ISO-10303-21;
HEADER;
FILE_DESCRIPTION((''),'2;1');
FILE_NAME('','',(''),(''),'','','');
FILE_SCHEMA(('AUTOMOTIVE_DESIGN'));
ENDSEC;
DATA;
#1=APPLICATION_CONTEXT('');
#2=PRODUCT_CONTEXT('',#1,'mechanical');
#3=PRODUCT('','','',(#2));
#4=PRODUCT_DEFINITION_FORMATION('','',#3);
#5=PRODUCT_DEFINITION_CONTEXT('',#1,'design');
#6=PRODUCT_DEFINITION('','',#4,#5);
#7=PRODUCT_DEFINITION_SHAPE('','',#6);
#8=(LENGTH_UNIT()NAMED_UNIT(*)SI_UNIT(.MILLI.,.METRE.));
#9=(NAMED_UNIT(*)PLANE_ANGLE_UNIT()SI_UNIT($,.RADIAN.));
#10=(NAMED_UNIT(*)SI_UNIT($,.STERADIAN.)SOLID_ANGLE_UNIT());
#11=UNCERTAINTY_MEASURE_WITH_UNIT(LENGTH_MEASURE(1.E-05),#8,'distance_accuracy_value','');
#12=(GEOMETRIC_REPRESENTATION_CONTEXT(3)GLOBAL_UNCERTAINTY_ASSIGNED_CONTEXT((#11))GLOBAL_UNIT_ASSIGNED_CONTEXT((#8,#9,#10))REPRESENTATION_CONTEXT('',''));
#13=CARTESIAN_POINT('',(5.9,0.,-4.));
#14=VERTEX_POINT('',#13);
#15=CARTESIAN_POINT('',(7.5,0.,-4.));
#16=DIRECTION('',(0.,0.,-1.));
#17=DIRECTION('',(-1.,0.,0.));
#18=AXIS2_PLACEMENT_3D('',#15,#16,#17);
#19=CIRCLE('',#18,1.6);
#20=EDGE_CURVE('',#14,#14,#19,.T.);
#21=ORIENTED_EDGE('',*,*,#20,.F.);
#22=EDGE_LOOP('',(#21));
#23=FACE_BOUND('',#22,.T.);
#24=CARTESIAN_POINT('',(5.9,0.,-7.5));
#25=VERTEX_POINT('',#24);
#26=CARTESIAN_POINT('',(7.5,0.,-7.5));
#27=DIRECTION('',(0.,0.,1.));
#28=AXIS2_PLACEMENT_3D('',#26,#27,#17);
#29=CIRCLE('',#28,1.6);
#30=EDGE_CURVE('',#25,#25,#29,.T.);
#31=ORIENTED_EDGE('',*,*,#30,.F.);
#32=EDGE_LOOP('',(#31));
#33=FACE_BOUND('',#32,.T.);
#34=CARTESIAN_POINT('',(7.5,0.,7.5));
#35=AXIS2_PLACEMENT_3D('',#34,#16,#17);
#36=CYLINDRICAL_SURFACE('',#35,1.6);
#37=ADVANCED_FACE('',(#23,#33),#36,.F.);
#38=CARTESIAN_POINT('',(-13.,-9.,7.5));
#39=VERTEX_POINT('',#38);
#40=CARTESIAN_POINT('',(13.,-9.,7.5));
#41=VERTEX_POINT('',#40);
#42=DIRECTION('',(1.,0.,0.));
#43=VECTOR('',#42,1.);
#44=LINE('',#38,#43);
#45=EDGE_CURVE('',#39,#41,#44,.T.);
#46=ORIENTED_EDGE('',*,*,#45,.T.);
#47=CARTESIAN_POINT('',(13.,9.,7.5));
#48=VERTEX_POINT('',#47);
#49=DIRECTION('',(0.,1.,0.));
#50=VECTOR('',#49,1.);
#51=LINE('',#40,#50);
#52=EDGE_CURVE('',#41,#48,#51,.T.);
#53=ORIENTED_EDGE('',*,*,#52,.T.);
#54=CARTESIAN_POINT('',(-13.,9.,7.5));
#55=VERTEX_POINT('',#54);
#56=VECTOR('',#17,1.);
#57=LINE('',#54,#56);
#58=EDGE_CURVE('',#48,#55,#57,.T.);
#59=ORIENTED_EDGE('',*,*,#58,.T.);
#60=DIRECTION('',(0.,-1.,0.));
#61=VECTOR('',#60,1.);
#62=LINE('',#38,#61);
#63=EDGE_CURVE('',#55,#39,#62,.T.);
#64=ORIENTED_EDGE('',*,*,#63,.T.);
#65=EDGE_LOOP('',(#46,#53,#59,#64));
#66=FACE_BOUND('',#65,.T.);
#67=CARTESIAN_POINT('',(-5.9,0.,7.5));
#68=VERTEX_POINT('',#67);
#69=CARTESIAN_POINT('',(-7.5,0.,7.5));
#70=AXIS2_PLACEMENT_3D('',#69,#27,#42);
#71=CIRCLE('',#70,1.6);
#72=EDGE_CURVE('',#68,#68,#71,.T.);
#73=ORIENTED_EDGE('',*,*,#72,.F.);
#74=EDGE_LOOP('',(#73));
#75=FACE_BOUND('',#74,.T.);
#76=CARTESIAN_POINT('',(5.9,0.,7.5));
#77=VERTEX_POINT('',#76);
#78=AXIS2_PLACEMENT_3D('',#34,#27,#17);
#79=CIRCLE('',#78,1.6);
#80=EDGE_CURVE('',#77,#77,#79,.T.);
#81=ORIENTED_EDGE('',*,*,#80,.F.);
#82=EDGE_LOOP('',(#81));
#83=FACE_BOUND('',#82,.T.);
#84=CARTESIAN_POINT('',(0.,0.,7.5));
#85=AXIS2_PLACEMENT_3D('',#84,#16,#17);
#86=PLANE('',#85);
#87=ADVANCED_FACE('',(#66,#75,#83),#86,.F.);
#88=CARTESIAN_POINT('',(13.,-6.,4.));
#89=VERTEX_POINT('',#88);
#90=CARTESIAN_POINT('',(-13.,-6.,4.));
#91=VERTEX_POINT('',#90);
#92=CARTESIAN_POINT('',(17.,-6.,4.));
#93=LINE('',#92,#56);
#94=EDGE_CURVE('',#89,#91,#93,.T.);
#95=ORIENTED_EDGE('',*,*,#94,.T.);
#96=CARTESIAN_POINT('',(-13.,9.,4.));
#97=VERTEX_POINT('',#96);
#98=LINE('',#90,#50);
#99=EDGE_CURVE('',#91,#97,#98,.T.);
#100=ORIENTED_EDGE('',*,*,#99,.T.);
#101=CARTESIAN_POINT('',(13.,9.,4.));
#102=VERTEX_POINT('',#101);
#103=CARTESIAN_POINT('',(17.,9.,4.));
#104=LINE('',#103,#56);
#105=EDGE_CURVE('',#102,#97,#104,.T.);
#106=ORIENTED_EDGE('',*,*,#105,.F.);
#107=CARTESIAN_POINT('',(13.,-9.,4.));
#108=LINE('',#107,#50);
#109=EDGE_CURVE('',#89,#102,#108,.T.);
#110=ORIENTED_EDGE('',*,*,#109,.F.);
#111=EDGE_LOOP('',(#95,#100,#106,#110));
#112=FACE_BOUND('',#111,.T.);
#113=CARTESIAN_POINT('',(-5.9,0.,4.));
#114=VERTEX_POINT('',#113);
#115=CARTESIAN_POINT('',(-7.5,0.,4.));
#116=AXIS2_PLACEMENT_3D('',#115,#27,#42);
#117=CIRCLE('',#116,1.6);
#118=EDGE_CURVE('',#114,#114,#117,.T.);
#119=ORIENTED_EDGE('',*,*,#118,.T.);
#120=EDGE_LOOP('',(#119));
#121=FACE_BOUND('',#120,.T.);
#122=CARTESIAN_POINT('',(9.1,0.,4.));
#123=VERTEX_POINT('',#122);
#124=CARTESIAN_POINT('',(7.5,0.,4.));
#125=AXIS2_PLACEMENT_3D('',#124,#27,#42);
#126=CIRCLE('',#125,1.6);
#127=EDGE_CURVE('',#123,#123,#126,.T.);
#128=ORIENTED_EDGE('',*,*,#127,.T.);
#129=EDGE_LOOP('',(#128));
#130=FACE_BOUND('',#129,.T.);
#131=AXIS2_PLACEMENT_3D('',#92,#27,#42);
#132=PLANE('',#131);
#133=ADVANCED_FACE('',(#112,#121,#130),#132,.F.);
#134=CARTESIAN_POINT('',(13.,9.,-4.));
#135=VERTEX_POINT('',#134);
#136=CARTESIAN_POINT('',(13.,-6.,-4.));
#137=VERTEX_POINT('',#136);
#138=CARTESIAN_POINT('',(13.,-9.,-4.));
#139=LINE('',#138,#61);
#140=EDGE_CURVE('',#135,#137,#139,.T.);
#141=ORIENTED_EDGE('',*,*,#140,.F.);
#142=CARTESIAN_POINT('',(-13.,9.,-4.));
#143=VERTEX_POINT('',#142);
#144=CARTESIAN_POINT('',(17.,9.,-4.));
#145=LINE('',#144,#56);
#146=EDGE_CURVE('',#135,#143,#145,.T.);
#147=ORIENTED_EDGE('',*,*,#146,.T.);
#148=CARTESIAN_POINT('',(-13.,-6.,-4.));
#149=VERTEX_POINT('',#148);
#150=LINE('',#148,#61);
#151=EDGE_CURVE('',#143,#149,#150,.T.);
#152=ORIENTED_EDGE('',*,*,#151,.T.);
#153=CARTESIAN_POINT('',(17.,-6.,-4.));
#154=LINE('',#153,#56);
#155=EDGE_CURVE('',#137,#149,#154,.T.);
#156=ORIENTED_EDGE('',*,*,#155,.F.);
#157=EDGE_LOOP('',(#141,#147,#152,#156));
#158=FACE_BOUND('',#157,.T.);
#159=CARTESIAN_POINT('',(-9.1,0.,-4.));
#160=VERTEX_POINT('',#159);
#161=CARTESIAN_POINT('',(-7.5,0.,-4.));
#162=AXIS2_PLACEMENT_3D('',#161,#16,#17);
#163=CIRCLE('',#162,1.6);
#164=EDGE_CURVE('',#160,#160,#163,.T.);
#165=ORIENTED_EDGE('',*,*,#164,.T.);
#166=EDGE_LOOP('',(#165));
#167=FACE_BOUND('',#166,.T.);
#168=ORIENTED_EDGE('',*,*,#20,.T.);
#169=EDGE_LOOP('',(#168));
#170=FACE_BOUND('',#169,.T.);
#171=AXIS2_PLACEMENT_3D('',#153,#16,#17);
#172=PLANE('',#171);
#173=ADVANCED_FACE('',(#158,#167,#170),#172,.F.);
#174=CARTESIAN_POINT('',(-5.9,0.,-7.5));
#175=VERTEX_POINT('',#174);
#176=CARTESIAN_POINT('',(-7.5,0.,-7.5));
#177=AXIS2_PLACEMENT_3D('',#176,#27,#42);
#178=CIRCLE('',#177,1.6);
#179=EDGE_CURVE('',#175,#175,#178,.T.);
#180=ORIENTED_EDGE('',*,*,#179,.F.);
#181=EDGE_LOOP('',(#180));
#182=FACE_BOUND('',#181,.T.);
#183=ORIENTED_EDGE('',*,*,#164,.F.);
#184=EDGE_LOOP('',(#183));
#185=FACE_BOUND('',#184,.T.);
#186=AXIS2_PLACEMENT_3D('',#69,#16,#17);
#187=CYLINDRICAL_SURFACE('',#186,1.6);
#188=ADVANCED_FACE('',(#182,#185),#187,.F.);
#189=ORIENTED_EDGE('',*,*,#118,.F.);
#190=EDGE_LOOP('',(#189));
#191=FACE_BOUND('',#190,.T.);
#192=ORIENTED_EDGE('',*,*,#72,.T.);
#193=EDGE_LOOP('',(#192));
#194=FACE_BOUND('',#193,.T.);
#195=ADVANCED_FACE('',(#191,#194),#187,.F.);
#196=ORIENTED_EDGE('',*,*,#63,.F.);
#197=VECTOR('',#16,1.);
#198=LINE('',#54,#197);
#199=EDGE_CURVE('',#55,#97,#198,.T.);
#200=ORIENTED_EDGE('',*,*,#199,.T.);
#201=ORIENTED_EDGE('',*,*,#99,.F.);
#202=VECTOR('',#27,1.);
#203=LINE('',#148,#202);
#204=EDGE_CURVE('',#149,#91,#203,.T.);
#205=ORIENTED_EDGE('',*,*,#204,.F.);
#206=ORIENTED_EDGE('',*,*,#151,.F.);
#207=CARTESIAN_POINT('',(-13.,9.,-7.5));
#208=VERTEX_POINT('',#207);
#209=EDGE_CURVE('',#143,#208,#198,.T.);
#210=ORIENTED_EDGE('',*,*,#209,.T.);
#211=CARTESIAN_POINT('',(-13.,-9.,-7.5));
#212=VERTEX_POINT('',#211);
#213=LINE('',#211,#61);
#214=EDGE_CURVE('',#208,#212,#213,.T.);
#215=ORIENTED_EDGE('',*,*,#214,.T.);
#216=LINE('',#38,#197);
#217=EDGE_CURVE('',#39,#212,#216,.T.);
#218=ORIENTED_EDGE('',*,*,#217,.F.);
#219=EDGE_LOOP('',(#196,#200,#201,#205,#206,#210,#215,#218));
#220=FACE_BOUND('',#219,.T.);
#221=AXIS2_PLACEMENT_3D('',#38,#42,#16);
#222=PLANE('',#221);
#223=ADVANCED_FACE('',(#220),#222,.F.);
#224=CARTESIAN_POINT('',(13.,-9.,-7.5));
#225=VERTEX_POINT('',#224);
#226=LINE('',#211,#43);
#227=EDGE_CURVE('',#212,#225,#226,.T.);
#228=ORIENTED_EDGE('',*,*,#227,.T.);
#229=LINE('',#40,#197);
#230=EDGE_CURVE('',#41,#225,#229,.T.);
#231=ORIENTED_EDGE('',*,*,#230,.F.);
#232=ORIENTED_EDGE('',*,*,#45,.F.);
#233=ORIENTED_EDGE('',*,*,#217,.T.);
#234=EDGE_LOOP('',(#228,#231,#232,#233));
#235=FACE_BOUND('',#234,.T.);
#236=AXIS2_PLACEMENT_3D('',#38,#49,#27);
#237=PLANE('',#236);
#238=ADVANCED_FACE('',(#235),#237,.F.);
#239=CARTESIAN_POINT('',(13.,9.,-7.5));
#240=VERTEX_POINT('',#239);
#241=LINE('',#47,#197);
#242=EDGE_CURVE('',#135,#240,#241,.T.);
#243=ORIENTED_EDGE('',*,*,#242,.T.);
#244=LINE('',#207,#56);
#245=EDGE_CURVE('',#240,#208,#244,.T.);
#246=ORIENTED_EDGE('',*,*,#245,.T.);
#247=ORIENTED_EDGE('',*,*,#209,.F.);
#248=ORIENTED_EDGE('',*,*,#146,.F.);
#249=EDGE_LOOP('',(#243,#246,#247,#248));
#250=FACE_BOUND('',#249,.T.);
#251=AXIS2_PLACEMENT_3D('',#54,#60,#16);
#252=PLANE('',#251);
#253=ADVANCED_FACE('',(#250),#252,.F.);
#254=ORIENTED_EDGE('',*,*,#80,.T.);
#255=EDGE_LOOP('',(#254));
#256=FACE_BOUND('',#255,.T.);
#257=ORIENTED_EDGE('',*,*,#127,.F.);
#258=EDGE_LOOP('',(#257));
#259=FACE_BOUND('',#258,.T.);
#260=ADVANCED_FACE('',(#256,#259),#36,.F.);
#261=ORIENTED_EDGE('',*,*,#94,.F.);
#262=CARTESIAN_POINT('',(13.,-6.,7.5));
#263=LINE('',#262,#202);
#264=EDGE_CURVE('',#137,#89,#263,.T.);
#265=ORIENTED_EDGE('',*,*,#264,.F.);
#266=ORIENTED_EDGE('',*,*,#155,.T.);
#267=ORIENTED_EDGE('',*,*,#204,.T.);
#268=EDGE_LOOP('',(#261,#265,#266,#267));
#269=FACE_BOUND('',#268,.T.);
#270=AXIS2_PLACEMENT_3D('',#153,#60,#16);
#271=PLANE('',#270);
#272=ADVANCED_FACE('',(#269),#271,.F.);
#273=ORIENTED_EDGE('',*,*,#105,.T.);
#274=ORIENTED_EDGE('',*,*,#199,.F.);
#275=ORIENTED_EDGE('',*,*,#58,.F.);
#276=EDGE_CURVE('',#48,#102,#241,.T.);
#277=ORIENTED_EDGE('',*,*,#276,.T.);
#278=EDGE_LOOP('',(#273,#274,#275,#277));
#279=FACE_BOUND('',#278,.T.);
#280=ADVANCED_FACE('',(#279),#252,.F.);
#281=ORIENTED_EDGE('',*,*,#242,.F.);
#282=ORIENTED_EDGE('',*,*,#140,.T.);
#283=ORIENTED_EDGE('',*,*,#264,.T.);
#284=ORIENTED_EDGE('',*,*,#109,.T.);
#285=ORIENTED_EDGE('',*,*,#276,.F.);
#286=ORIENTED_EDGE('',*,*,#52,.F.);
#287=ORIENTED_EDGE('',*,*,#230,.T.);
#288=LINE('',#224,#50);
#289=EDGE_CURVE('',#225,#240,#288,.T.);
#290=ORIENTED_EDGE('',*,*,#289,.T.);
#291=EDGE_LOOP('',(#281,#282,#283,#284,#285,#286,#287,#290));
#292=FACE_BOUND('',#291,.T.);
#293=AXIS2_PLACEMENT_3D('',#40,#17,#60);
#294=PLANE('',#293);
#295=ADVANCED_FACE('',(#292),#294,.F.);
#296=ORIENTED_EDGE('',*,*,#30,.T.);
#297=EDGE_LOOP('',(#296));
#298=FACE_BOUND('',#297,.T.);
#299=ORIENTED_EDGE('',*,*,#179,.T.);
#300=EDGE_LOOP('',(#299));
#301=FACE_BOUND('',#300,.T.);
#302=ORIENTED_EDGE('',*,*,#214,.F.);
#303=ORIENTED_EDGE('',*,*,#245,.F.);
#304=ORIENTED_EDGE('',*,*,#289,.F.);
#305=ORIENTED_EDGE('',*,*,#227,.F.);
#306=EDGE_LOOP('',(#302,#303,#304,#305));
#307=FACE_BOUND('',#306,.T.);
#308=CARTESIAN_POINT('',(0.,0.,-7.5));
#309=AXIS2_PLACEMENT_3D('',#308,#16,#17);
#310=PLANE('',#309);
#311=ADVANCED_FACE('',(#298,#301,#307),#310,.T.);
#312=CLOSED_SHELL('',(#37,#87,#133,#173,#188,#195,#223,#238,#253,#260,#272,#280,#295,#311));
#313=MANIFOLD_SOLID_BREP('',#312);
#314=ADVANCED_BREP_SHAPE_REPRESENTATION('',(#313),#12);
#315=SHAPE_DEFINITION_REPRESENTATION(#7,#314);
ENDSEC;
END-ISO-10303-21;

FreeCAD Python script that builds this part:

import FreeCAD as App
import Part
import Sketcher


def add_polygon(sketch, points):
    """Adds a closed chain of lines whose ends are joined by coincident constraints."""
    first, n = sketch.GeometryCount, len(points)
    for a, b in zip(points, points[1:] + points[:1]):
        sketch.addGeometry(Part.LineSegment(App.Vector(*a, 0), App.Vector(*b, 0)), False)
    for i in range(n):
        sketch.addConstraint(Sketcher.Constraint("Coincident", first + i, 2, first + (i + 1) % n, 1))

doc = App.newDocument("Part")
body = doc.addObject("PartDesign::Body", "Body")

sketch1 = doc.addObject("Sketcher::SketchObject", "Sketch")
body.addObject(sketch1)
sketch1.AttachmentSupport = (doc.XY_Plane, [""])
sketch1.MapMode = "FlatFace"
add_polygon(sketch1, [(-13, 9), (-13, -9), (13, -9), (13, 9)])
sketch1.addGeometry(Part.Circle(App.Vector(-7.5, 0, 0), App.Vector(0, 0, 1), 1.6), False)
sketch1.addGeometry(Part.Circle(App.Vector(7.5, 0, 0), App.Vector(0, 0, 1), 1.6), False)
sketch1.addConstraint([
    Sketcher.Constraint("Vertical", 0),
    Sketcher.Constraint("Horizontal", 1),
    Sketcher.Constraint("Vertical", 2),
    Sketcher.Constraint("Horizontal", 3),
    Sketcher.Constraint("Equal", 4, 5),
    Sketcher.Constraint("Symmetric", 4, 3, 5, 3, -1, 1),
    Sketcher.Constraint("Symmetric", 0, 2, 2, 2, -1, 1),
    Sketcher.Constraint("PointOnObject", 4, 3, -1),
    Sketcher.Constraint("Diameter", 4, 3.2),
    Sketcher.Constraint("DistanceX", 1, 1, 1, 2, 26.0),
    Sketcher.Constraint("DistanceY", 0, 2, 0, 1, 18.0),
    Sketcher.Constraint("DistanceX", 4, 3, 5, 3, 15.0),
])
pad1 = doc.addObject("PartDesign::Pad", "Pad")
body.addObject(pad1)
pad1.Profile = sketch1
pad1.Length = 15
pad1.Midplane = True

sketch2 = doc.addObject("Sketcher::SketchObject", "Sketch001")
body.addObject(sketch2)
sketch2.AttachmentSupport = (doc.YZ_Plane, [""])
sketch2.MapMode = "FlatFace"
sketch2.AttachmentOffset = App.Placement(App.Vector(0, 0, -13), App.Rotation())
add_polygon(sketch2, [(9, -4), (-6, -4), (-6, 4), (9, 4)])
sketch2.addConstraint([
    Sketcher.Constraint("Horizontal", 0),
    Sketcher.Constraint("Vertical", 1),
    Sketcher.Constraint("Horizontal", 2),
    Sketcher.Constraint("Vertical", 3),
    Sketcher.Constraint("DistanceX", 0, 2, 0, 1, 15.0),
    Sketcher.Constraint("DistanceY", 1, 1, 1, 2, 8.0),
    Sketcher.Constraint("DistanceX", 0, 2, -1, 1, 6.0),
    Sketcher.Constraint("DistanceY", 0, 2, -1, 1, 4.0),
])
pocket1 = doc.addObject("PartDesign::Pocket", "Pocket")
body.addObject(pocket1)
pocket1.Profile = sketch2
pocket1.Length = 30
pocket1.Reversed = True

doc.recompute()
